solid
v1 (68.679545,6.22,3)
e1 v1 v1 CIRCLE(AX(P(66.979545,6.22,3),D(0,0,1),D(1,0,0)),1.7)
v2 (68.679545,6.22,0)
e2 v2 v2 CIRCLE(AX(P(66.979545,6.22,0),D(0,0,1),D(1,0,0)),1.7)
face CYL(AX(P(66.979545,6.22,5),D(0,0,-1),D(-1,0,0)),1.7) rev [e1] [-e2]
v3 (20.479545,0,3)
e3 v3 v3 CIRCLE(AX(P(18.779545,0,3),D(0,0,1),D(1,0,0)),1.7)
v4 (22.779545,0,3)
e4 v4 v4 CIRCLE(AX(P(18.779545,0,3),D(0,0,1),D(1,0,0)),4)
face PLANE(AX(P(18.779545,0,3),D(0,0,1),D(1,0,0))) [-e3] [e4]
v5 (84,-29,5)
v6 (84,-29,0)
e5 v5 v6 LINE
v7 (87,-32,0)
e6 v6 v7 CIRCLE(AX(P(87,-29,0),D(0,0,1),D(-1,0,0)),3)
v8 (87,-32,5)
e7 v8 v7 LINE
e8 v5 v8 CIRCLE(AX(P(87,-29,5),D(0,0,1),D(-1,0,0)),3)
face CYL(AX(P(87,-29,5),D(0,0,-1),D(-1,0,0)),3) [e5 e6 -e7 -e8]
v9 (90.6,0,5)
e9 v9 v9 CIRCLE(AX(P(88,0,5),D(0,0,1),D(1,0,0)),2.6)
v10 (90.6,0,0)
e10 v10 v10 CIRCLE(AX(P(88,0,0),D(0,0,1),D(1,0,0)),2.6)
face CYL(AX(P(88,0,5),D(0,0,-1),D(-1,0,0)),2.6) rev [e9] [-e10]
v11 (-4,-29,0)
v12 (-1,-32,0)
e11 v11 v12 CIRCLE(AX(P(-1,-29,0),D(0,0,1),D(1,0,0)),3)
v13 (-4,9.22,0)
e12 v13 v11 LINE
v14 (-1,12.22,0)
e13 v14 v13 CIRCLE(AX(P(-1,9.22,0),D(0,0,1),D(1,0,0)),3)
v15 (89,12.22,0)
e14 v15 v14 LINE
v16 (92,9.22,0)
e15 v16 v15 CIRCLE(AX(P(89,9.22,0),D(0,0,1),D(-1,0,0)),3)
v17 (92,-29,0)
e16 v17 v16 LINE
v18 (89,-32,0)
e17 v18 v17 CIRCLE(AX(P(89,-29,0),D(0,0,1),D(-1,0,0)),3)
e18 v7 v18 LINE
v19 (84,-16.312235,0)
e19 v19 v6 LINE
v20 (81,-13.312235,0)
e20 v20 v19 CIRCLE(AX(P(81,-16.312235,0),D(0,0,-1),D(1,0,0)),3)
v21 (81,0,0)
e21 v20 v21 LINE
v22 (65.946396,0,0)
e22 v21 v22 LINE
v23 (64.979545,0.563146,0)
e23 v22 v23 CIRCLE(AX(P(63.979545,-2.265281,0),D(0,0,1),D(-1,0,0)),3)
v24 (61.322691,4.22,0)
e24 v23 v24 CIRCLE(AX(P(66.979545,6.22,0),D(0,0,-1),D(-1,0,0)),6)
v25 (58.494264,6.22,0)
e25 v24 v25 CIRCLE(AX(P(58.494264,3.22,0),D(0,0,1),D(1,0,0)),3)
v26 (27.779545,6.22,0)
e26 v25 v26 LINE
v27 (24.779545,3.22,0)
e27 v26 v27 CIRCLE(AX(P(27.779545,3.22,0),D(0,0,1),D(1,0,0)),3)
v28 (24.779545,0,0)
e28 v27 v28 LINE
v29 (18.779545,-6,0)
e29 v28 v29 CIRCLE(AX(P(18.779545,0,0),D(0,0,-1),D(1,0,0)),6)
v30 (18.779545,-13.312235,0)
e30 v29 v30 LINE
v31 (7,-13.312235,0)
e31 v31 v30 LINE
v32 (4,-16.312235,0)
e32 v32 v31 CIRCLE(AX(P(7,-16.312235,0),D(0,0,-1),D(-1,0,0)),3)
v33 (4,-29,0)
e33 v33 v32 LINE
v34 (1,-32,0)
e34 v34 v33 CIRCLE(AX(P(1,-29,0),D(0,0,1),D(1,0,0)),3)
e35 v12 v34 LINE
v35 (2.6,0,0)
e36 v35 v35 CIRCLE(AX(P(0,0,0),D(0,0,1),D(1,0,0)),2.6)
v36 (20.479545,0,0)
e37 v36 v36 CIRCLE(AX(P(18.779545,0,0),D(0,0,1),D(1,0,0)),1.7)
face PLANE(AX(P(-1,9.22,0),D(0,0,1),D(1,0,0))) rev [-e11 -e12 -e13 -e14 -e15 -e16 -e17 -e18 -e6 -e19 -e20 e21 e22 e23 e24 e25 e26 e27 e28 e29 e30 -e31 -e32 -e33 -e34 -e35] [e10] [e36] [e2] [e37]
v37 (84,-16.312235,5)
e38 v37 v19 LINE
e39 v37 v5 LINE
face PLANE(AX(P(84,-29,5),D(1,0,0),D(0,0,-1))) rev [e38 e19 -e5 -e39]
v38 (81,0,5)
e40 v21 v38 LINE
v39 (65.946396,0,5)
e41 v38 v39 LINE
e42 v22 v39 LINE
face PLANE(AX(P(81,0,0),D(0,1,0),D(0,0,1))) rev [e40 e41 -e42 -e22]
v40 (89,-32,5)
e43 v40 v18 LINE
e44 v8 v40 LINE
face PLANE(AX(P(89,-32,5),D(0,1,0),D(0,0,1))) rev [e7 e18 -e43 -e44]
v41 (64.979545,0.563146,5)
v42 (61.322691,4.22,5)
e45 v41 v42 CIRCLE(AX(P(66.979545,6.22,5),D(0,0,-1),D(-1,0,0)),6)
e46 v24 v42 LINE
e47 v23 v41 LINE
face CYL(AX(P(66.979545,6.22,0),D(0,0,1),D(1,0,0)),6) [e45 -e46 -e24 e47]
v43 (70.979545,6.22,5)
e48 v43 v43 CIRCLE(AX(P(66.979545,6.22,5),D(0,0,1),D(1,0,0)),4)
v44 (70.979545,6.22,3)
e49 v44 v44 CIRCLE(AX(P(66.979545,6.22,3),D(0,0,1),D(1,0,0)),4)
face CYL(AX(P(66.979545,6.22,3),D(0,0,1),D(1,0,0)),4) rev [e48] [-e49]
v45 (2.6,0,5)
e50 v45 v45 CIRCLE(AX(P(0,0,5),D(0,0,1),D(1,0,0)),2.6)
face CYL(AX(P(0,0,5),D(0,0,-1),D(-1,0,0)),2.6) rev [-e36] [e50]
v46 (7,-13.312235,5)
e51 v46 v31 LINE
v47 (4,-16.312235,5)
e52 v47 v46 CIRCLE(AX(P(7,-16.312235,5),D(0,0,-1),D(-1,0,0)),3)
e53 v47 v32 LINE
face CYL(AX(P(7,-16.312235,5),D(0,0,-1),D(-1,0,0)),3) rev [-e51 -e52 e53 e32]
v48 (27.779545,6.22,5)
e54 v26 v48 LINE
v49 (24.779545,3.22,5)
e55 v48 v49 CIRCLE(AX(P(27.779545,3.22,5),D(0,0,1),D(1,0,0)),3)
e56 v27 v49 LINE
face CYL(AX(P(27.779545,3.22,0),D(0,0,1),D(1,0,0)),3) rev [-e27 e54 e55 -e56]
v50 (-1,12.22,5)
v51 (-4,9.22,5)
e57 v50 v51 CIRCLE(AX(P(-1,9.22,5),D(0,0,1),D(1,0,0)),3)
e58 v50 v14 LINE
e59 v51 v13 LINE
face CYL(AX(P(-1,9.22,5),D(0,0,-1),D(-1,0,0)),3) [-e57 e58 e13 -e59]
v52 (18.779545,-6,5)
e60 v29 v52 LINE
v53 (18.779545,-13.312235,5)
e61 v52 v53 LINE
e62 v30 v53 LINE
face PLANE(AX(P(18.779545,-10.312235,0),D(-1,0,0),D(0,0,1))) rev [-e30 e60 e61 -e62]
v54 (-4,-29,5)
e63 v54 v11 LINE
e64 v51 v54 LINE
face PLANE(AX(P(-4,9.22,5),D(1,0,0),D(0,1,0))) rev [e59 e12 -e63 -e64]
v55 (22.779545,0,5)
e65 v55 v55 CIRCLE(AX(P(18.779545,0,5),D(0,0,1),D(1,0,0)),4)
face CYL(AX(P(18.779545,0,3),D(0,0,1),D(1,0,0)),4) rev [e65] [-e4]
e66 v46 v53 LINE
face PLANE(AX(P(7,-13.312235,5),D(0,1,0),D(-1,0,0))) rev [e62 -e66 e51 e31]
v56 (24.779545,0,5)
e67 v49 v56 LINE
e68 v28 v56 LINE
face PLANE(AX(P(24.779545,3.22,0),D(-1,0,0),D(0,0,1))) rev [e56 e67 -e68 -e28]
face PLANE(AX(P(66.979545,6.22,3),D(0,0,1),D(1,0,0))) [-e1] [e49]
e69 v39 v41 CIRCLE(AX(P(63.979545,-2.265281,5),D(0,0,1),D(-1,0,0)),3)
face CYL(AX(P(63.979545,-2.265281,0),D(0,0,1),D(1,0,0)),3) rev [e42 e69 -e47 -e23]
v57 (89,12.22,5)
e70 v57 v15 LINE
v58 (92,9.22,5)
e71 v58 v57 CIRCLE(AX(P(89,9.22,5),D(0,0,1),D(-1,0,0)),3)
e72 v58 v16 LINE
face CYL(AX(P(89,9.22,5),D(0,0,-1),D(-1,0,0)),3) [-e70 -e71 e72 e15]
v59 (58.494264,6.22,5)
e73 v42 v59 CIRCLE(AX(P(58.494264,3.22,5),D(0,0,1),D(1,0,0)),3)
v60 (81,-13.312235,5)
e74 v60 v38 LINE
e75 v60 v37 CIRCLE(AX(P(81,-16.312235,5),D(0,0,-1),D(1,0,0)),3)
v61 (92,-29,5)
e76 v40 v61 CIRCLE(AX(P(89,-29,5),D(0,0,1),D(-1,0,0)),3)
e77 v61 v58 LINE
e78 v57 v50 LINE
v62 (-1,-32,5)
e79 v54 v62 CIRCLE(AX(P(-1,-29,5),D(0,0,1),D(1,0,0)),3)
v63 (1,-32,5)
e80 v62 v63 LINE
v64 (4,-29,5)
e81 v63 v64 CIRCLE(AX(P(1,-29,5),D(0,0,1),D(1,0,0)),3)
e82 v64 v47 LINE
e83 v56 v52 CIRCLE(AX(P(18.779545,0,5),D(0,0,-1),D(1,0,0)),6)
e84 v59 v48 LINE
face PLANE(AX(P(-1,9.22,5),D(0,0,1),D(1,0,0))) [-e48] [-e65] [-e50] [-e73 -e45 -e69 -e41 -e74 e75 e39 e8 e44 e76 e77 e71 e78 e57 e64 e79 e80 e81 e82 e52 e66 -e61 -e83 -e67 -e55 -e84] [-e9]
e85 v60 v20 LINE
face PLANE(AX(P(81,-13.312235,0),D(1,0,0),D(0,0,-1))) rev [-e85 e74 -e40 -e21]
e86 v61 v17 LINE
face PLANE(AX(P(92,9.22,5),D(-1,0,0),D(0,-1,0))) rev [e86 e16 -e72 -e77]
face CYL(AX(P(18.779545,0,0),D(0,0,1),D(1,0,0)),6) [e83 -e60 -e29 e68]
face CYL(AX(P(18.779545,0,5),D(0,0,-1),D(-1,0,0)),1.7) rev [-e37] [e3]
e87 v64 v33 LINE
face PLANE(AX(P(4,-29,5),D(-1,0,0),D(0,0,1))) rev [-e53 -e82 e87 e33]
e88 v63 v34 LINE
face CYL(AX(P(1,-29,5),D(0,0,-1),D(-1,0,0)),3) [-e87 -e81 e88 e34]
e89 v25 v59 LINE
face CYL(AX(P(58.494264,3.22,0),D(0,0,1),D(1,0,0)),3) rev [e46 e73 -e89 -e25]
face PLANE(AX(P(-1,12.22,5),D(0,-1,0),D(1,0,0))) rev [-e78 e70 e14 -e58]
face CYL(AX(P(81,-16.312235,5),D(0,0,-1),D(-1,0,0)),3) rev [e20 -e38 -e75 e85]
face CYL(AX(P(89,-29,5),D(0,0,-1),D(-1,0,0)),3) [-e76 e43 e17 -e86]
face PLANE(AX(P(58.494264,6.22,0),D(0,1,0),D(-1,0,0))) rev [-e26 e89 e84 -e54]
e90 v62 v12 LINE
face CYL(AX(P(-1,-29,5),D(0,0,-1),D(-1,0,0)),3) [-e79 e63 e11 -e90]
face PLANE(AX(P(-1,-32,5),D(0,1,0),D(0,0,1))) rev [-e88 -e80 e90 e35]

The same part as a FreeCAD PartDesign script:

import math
import FreeCAD as App
import Part
import Sketcher

doc = App.newDocument("Part")
body = doc.addObject("PartDesign::Body", "Body")

sketch1 = body.newObject("Sketcher::SketchObject", "Sketch")
sketch1.AttachmentSupport = (doc.getObject("XY_Plane"), [""])
sketch1.MapMode = "FlatFace"
sketch1.addGeometry([
    Part.LineSegment(App.Vector(7, -13.3, 0), App.Vector(81, -13.3, 0)),
    Part.ArcOfCircle(Part.Circle(App.Vector(81, -16.3, 0), App.Vector(0, 0, 1), 3), math.radians(0), math.radians(90)),
    Part.LineSegment(App.Vector(84, -16.3, 0), App.Vector(84, -29, 0)),
    Part.ArcOfCircle(Part.Circle(App.Vector(87, -29, 0), App.Vector(0, 0, 1), 3), math.radians(180), math.radians(270)),
    Part.LineSegment(App.Vector(87, -32, 0), App.Vector(89, -32, 0)),
    Part.ArcOfCircle(Part.Circle(App.Vector(89, -29, 0), App.Vector(0, 0, 1), 3), math.radians(-90), math.radians(0)),
    Part.LineSegment(App.Vector(92, -29, 0), App.Vector(92, 9.2, 0)),
    Part.ArcOfCircle(Part.Circle(App.Vector(89, 9.2, 0), App.Vector(0, 0, 1), 3), math.radians(0), math.radians(90)),
    Part.LineSegment(App.Vector(89, 12.2, 0), App.Vector(-1, 12.2, 0)),
    Part.ArcOfCircle(Part.Circle(App.Vector(-1, 9.2, 0), App.Vector(0, 0, 1), 3), math.radians(90), math.radians(180)),
    Part.LineSegment(App.Vector(-4, 9.2, 0), App.Vector(-4, -29, 0)),
    Part.ArcOfCircle(Part.Circle(App.Vector(-1, -29, 0), App.Vector(0, 0, 1), 3), math.radians(180), math.radians(270)),
    Part.LineSegment(App.Vector(-1, -32, 0), App.Vector(1, -32, 0)),
    Part.ArcOfCircle(Part.Circle(App.Vector(1, -29, 0), App.Vector(0, 0, 1), 3), math.radians(-90), math.radians(0)),
    Part.LineSegment(App.Vector(4, -29, 0), App.Vector(4, -16.3, 0)),
    Part.ArcOfCircle(Part.Circle(App.Vector(7, -16.3, 0), App.Vector(0, 0, 1), 3), math.radians(90), math.radians(180)),
    Part.Circle(App.Vector(0, 0, 0), App.Vector(0, 0, 1), 2.6),
    Part.Circle(App.Vector(18.8, 0, 0), App.Vector(0, 0, 1), 1.7),
    Part.Circle(App.Vector(88, 0, 0), App.Vector(0, 0, 1), 2.6),
    Part.Circle(App.Vector(67, 6.2, 0), App.Vector(0, 0, 1), 1.7),
], False)
sketch1.addConstraint([
    Sketcher.Constraint("Tangent", 0, 2, 1, 2),
    Sketcher.Constraint("Tangent", 1, 1, 2, 1),
    Sketcher.Constraint("Tangent", 2, 2, 3, 1),
    Sketcher.Constraint("Tangent", 3, 2, 4, 1),
    Sketcher.Constraint("Tangent", 4, 2, 5, 1),
    Sketcher.Constraint("Tangent", 5, 2, 6, 1),
    Sketcher.Constraint("Tangent", 6, 2, 7, 1),
    Sketcher.Constraint("Tangent", 7, 2, 8, 1),
    Sketcher.Constraint("Tangent", 8, 2, 9, 1),
    Sketcher.Constraint("Tangent", 9, 2, 10, 1),
    Sketcher.Constraint("Tangent", 10, 2, 11, 1),
    Sketcher.Constraint("Tangent", 11, 2, 12, 1),
    Sketcher.Constraint("Tangent", 12, 2, 13, 1),
    Sketcher.Constraint("Tangent", 13, 2, 14, 1),
    Sketcher.Constraint("Tangent", 14, 2, 15, 2),
    Sketcher.Constraint("Tangent", 15, 1, 0, 1),
    Sketcher.Constraint("Horizontal", 0),
    Sketcher.Constraint("Vertical", 2),
    Sketcher.Constraint("Horizontal", 4),
    Sketcher.Constraint("Vertical", 6),
    Sketcher.Constraint("Horizontal", 8),
    Sketcher.Constraint("Vertical", 10),
    Sketcher.Constraint("Horizontal", 12),
    Sketcher.Constraint("Vertical", 14),
    Sketcher.Constraint("Coincident", 16, 3, -1, 1),
    Sketcher.Constraint("Equal", 1, 3),
    Sketcher.Constraint("Equal", 3, 5),
    Sketcher.Constraint("Equal", 5, 7),
    Sketcher.Constraint("Equal", 7, 9),
    Sketcher.Constraint("Equal", 9, 11),
    Sketcher.Constraint("Equal", 11, 13),
    Sketcher.Constraint("Equal", 13, 15),
    Sketcher.Constraint("Equal", 16, 18),
    Sketcher.Constraint("Equal", 17, 19),
    Sketcher.Constraint("PointOnObject", 17, 3, -1),
    Sketcher.Constraint("PointOnObject", 18, 3, -1),
    Sketcher.Constraint("Horizontal", 5, 3, 11, 3),
    Sketcher.Constraint("Equal", 4, 12),
    Sketcher.Constraint("Radius", 1, 3.0),
    Sketcher.Constraint("Diameter", 16, 5.2),
    Sketcher.Constraint("Diameter", 17, 3.4),
    Sketcher.Constraint("DistanceX", 0, 1, 0, 2, 74.0),
    Sketcher.Constraint("DistanceX", 4, 1, 4, 2, 2.0),
    Sketcher.Constraint("DistanceX", -1, 1, 1, 3, 81.0),
    Sketcher.Constraint("DistanceY", 3, 3, -1, 1, 29.0),
    Sketcher.Constraint("DistanceX", -1, 1, 18, 3, 88.0),
    Sketcher.Constraint("DistanceY", 19, 3, 7, 3, 3.0),
    Sketcher.Constraint("DistanceY", 6, 1, 6, 2, 38.22),
    Sketcher.Constraint("DistanceY", 2, 2, 2, 1, 12.687765),
    Sketcher.Constraint("DistanceX", -1, 1, 17, 3, 18.779545),
    Sketcher.Constraint("DistanceX", -1, 1, 19, 3, 66.979545),
])
pad1 = body.newObject("PartDesign::Pad", "Pad")
pad1.Profile = sketch1
pad1.Length = 5

sketch2 = body.newObject("Sketcher::SketchObject", "Sketch001")
sketch2.AttachmentSupport = (doc.getObject("XY_Plane"), [""])
sketch2.MapMode = "FlatFace"
sketch2.AttachmentOffset = App.Placement(App.Vector(0, 0, 5), App.Rotation())
sketch2.addGeometry([
    Part.Circle(App.Vector(18.8, 0, 0), App.Vector(0, 0, 1), 4),
    Part.Circle(App.Vector(67, 6.2, 0), App.Vector(0, 0, 1), 4),
], False)
sketch2.addConstraint([
    Sketcher.Constraint("Equal", 0, 1),
    Sketcher.Constraint("PointOnObject", 0, 3, -1),
    Sketcher.Constraint("Diameter", 0, 8.0),
    Sketcher.Constraint("DistanceX", 0, 3, 1, 3, 48.2),
    Sketcher.Constraint("DistanceY", -1, 1, 1, 3, 6.22),
    Sketcher.Constraint("DistanceX", -1, 1, 0, 3, 18.779545),
])
pocket1 = body.newObject("PartDesign::Pocket", "Pocket")
pocket1.Profile = sketch2
pocket1.Length = 2

sketch3 = body.newObject("Sketcher::SketchObject", "Sketch002")
sketch3.AttachmentSupport = (doc.getObject("XY_Plane"), [""])
sketch3.MapMode = "FlatFace"
sketch3.AttachmentOffset = App.Placement(App.Vector(0, 0, 5), App.Rotation())
sketch3.addGeometry([
    Part.LineSegment(App.Vector(18.8, -6, 0), App.Vector(18.8, -13.3, 0)),
    Part.LineSegment(App.Vector(18.8, -13.3, 0), App.Vector(81, -13.3, 0)),
    Part.LineSegment(App.Vector(81, -13.3, 0), App.Vector(81, 0, 0)),
    Part.LineSegment(App.Vector(81, 0, 0), App.Vector(65.9, 0, 0)),
    Part.ArcOfCircle(Part.Circle(App.Vector(64, -2.3, 0), App.Vector(0, 0, 1), 3), math.radians(49), math.radians(71)),
    Part.ArcOfCircle(Part.Circle(App.Vector(67, 6.2, 0), App.Vector(0, 0, 1), 6), math.radians(-161), math.radians(-109)),
    Part.ArcOfCircle(Part.Circle(App.Vector(58.5, 3.2, 0), App.Vector(0, 0, 1), 3), math.radians(19), math.radians(90)),
    Part.LineSegment(App.Vector(58.5, 6.2, 0), App.Vector(27.8, 6.2, 0)),
    Part.ArcOfCircle(Part.Circle(App.Vector(27.8, 3.2, 0), App.Vector(0, 0, 1), 3), math.radians(90), math.radians(180)),
    Part.LineSegment(App.Vector(24.8, 3.2, 0), App.Vector(24.8, 0, 0)),
    Part.ArcOfCircle(Part.Circle(App.Vector(18.8, 0, 0), App.Vector(0, 0, 1), 6), math.radians(-90), math.radians(0)),
], False)
sketch3.addConstraint([
    Sketcher.Constraint("Coincident", 0, 2, 1, 1),
    Sketcher.Constraint("Coincident", 1, 2, 2, 1),
    Sketcher.Constraint("Coincident", 2, 2, 3, 1),
    Sketcher.Constraint("Coincident", 3, 2, 4, 1),
    Sketcher.Constraint("Tangent", 4, 2, 5, 2),
    Sketcher.Constraint("Tangent", 5, 1, 6, 1),
    Sketcher.Constraint("Tangent", 6, 2, 7, 1),
    Sketcher.Constraint("Tangent", 7, 2, 8, 1),
    Sketcher.Constraint("Tangent", 8, 2, 9, 1),
    Sketcher.Constraint("Tangent", 9, 2, 10, 2),
    Sketcher.Constraint("Coincident", 10, 1, 0, 1),
    Sketcher.Constraint("Vertical", 0),
    Sketcher.Constraint("Horizontal", 1),
    Sketcher.Constraint("Vertical", 2),
    Sketcher.Constraint("Horizontal", 3),
    Sketcher.Constraint("Horizontal", 7),
    Sketcher.Constraint("Vertical", 9),
    Sketcher.Constraint("Equal", 4, 6),
    Sketcher.Constraint("Equal", 6, 8),
    Sketcher.Constraint("Equal", 5, 10),
    Sketcher.Constraint("PointOnObject", 10, 3, -1),
    Sketcher.Constraint("PointOnObject", 2, 2, -1),
    Sketcher.Constraint("Horizontal", 5, 3, 6, 2),
    Sketcher.Constraint("Vertical", 10, 3, 0, 2),
    Sketcher.Constraint("Radius", 4, 3.0),
    Sketcher.Constraint("Radius", 5, 6.0),
    Sketcher.Constraint("DistanceX", -1, 1, 1, 2, 81.0),
    Sketcher.Constraint("DistanceX", 4, 3, 5, 3, 3.0),
    Sketcher.Constraint("DistanceY", 9, 2, 9, 1, 3.22),
    Sketcher.Constraint("DistanceX", 8, 3, 4, 3, 36.2),
    Sketcher.Constraint("DistanceX", 1, 1, 1, 2, 62.220455),
    Sketcher.Constraint("DistanceY", 0, 2, 0, 1, 7.312235),
])
pocket2 = body.newObject("PartDesign::Pocket", "Pocket001")
pocket2.Profile = sketch3
pocket2.Length = 5

doc.recompute()
